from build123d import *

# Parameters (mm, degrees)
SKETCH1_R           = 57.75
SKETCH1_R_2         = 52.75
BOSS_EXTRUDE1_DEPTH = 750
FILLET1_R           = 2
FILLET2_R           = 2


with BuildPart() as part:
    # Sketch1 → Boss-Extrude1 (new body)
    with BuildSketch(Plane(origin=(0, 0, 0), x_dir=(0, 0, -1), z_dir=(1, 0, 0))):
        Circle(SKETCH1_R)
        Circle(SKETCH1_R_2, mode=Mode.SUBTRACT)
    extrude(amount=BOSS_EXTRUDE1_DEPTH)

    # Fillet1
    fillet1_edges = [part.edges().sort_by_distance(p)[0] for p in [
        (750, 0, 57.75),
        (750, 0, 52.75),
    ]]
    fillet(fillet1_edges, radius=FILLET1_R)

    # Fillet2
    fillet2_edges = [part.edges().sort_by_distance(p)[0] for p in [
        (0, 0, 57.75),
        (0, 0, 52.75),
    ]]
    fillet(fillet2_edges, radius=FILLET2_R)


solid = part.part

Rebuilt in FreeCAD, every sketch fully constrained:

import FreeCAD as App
import Part
import Sketcher

V = App.Vector


def edges_at(feature, points):
    """Names of the edges that pass closest to the given points."""
    edges = feature.Shape.Edges
    near = lambda p: min(range(len(edges)), key=lambda i: edges[i].distToShape(Part.Vertex(*p))[0])
    return sorted({f"Edge{near(p) + 1}" for p in points})

doc = App.newDocument("Part")
body = doc.addObject("PartDesign::Body", "Body")

sketch1 = body.newObject("Sketcher::SketchObject", "Sketch")
sketch1.AttachmentSupport = (doc.getObject("YZ_Plane"), [""])
sketch1.MapMode = "FlatFace"
sketch1.addGeometry(Part.Circle(V(0, 0, 0), V(0, 0, 1), 58), False)
sketch1.addGeometry(Part.Circle(V(0, 0, 0), V(0, 0, 1), 53), False)
sketch1.addConstraint(Sketcher.Constraint("Coincident", 0, 3, -1, 1))
sketch1.addConstraint(Sketcher.Constraint("Coincident", 1, 3, -1, 1))
sketch1.addConstraint(Sketcher.Constraint("Diameter", 0, 115.5))
sketch1.addConstraint(Sketcher.Constraint("Diameter", 1, 105.5))
pad1 = body.newObject("PartDesign::Pad", "Pad")
pad1.Profile = sketch1
pad1.Length = 750
doc.recompute()

fillet = body.newObject("PartDesign::Fillet", "Fillet")
fillet.Base = (pad1, edges_at(pad1, [(750, 0, 57.75), (750, 0, 52.75)]))
fillet.Radius = 2
doc.recompute()

fillet2 = body.newObject("PartDesign::Fillet", "Fillet001")
fillet2.Base = (fillet, edges_at(fillet, [(0, 0, 57.75), (0, 0, 52.75)]))
fillet2.Radius = 2

doc.recompute()
